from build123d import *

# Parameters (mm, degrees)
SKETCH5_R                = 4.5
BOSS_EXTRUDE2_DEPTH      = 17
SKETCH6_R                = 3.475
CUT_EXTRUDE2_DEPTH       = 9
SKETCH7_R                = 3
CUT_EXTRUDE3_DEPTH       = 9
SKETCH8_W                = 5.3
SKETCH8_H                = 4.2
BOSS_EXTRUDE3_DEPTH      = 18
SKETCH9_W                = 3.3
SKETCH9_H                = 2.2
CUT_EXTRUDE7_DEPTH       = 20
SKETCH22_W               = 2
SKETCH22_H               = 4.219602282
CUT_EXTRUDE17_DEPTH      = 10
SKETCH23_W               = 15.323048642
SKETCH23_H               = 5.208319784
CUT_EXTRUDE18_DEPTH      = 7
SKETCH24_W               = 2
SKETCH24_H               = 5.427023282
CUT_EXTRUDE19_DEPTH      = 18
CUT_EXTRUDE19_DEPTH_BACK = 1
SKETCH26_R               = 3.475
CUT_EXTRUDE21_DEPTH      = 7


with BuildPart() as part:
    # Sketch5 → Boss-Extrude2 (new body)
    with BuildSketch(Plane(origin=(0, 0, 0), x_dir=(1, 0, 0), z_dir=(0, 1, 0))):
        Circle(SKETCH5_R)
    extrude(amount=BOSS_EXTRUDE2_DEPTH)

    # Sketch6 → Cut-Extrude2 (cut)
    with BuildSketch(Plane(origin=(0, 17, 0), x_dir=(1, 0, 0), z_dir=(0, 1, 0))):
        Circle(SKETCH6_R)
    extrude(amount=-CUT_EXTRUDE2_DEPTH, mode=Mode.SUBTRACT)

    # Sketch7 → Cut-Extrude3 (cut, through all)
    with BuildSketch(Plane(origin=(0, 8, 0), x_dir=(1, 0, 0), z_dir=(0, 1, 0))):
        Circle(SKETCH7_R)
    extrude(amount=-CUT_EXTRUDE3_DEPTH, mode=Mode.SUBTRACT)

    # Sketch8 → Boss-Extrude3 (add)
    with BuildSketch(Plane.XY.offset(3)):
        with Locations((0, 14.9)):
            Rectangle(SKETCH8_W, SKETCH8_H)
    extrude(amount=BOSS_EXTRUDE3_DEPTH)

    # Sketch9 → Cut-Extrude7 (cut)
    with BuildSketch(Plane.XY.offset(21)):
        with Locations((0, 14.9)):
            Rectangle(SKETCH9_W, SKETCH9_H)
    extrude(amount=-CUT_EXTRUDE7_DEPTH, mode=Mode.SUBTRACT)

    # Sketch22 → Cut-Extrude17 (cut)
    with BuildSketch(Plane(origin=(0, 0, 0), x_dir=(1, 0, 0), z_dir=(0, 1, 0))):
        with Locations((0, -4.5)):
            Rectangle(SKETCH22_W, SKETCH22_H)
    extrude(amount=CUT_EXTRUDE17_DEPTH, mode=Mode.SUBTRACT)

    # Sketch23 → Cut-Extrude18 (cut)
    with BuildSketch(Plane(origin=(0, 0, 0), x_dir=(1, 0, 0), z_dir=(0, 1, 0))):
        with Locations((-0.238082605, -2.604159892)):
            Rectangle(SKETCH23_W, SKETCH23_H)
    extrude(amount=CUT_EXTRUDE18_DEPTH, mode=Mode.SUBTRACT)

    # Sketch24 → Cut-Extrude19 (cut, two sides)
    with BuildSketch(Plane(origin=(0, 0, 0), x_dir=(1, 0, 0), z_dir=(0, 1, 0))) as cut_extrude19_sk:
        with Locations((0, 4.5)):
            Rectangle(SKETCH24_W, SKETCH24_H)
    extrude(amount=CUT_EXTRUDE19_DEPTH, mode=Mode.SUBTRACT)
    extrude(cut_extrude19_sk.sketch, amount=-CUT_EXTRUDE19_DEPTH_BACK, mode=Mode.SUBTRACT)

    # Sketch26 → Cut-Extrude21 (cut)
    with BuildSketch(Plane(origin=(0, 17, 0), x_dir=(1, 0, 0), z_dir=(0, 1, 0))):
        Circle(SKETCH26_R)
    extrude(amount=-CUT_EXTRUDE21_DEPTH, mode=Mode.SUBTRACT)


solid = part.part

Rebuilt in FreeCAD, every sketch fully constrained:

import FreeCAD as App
import Part
import Sketcher
Q = App.Units.Quantity

doc = App.newDocument("Part")
body = doc.addObject("PartDesign::Body", "Body")

# Sketch on XZ plane
sketch1 = doc.addObject("Sketcher::SketchObject", "Sketch")
body.addObject(sketch1)
sketch1.AttachmentSupport = (doc.XZ_Plane, [""])
sketch1.MapMode = "FlatFace"
sketch1.addGeometry(Part.Circle(App.Vector(0, 0, 0), App.Vector(0, 0, 1), 4.5), False)
sketch1.addConstraint(Sketcher.Constraint("Coincident", 0, 3, -1, 1))
sketch1.addConstraint(Sketcher.Constraint("Diameter", 0, Q("9 mm")))
pad1 = doc.addObject("PartDesign::Pad", "Pad")
body.addObject(pad1)
pad1.Profile = sketch1
pad1.Length = 17
pad1.Reversed = True

# Sketch on XZ plane
sketch2 = doc.addObject("Sketcher::SketchObject", "Sketch001")
body.addObject(sketch2)
sketch2.AttachmentSupport = (doc.XZ_Plane, [""])
sketch2.MapMode = "FlatFace"
sketch2.AttachmentOffset = App.Placement(App.Vector(0, 0, -17), App.Rotation())
sketch2.addGeometry(Part.Circle(App.Vector(0, 0, 0), App.Vector(0, 0, 1), 3.475), False)
sketch2.addConstraint(Sketcher.Constraint("Coincident", 0, 3, -1, 1))
sketch2.addConstraint(Sketcher.Constraint("Diameter", 0, Q("6.95 mm")))
pocket1 = doc.addObject("PartDesign::Pocket", "Pocket")
body.addObject(pocket1)
pocket1.Profile = sketch2
pocket1.Length = 9
pocket1.Reversed = True

# Sketch on XZ plane
sketch3 = doc.addObject("Sketcher::SketchObject", "Sketch002")
body.addObject(sketch3)
sketch3.AttachmentSupport = (doc.XZ_Plane, [""])
sketch3.MapMode = "FlatFace"
sketch3.AttachmentOffset = App.Placement(App.Vector(0, 0, -8), App.Rotation())
sketch3.addGeometry(Part.Circle(App.Vector(0, 0, 0), App.Vector(0, 0, 1), 3), False)
sketch3.addConstraint(Sketcher.Constraint("Coincident", 0, 3, -1, 1))
sketch3.addConstraint(Sketcher.Constraint("Diameter", 0, Q("6 mm")))
pocket2 = doc.addObject("PartDesign::Pocket", "Pocket001")
body.addObject(pocket2)
pocket2.Profile = sketch3
pocket2.Type = "ThroughAll"
pocket2.Reversed = True

# Sketch on XY plane
sketch4 = doc.addObject("Sketcher::SketchObject", "Sketch003")
body.addObject(sketch4)
sketch4.AttachmentSupport = (doc.XY_Plane, [""])
sketch4.MapMode = "FlatFace"
sketch4.AttachmentOffset = App.Placement(App.Vector(0, 0, 3), App.Rotation())
sketch4.addGeometry(Part.LineSegment(App.Vector(-2.65, 17, 0), App.Vector(-2.65, 12.8, 0)), False)
sketch4.addGeometry(Part.LineSegment(App.Vector(-2.65, 12.8, 0), App.Vector(2.65, 12.8, 0)), False)
sketch4.addGeometry(Part.LineSegment(App.Vector(2.65, 12.8, 0), App.Vector(2.65, 17, 0)), False)
sketch4.addGeometry(Part.LineSegment(App.Vector(2.65, 17, 0), App.Vector(-2.65, 17, 0)), False)
sketch4.addConstraint(Sketcher.Constraint("Coincident", 0, 2, 1, 1))
sketch4.addConstraint(Sketcher.Constraint("Coincident", 1, 2, 2, 1))
sketch4.addConstraint(Sketcher.Constraint("Coincident", 2, 2, 3, 1))
sketch4.addConstraint(Sketcher.Constraint("Coincident", 3, 2, 0, 1))
sketch4.addConstraint(Sketcher.Constraint("Vertical", 0))
sketch4.addConstraint(Sketcher.Constraint("Horizontal", 1))
sketch4.addConstraint(Sketcher.Constraint("Vertical", 2))
sketch4.addConstraint(Sketcher.Constraint("Horizontal", 3))
sketch4.addConstraint(Sketcher.Constraint("DistanceX", 1, 1, 1, 2, Q("5.3 mm")))
sketch4.addConstraint(Sketcher.Constraint("DistanceY", 0, 2, 0, 1, Q("4.2 mm")))
sketch4.addConstraint(Sketcher.Constraint("DistanceY", -1, 1, 2, 2, Q("17 mm")))
sketch4.addConstraint(Sketcher.Constraint("DistanceX", 0, 2, -1, 1, Q("2.65 mm")))
pad2 = doc.addObject("PartDesign::Pad", "Pad001")
body.addObject(pad2)
pad2.Profile = sketch4
pad2.Length = 18

# Sketch on XY plane
sketch5 = doc.addObject("Sketcher::SketchObject", "Sketch004")
body.addObject(sketch5)
sketch5.AttachmentSupport = (doc.XY_Plane, [""])
sketch5.MapMode = "FlatFace"
sketch5.AttachmentOffset = App.Placement(App.Vector(0, 0, 21), App.Rotation())
sketch5.addGeometry(Part.LineSegment(App.Vector(-1.65, 16, 0), App.Vector(-1.65, 13.8, 0)), False)
sketch5.addGeometry(Part.LineSegment(App.Vector(-1.65, 13.8, 0), App.Vector(1.65, 13.8, 0)), False)
sketch5.addGeometry(Part.LineSegment(App.Vector(1.65, 13.8, 0), App.Vector(1.65, 16, 0)), False)
sketch5.addGeometry(Part.LineSegment(App.Vector(1.65, 16, 0), App.Vector(-1.65, 16, 0)), False)
sketch5.addConstraint(Sketcher.Constraint("Coincident", 0, 2, 1, 1))
sketch5.addConstraint(Sketcher.Constraint("Coincident", 1, 2, 2, 1))
sketch5.addConstraint(Sketcher.Constraint("Coincident", 2, 2, 3, 1))
sketch5.addConstraint(Sketcher.Constraint("Coincident", 3, 2, 0, 1))
sketch5.addConstraint(Sketcher.Constraint("Vertical", 0))
sketch5.addConstraint(Sketcher.Constraint("Horizontal", 1))
sketch5.addConstraint(Sketcher.Constraint("Vertical", 2))
sketch5.addConstraint(Sketcher.Constraint("Horizontal", 3))
sketch5.addConstraint(Sketcher.Constraint("DistanceX", 1, 1, 1, 2, Q("3.3 mm")))
sketch5.addConstraint(Sketcher.Constraint("DistanceY", 0, 2, 0, 1, Q("2.2 mm")))
sketch5.addConstraint(Sketcher.Constraint("DistanceY", -1, 1, 2, 2, Q("16 mm")))
sketch5.addConstraint(Sketcher.Constraint("DistanceX", 0, 2, -1, 1, Q("1.65 mm")))
pocket3 = doc.addObject("PartDesign::Pocket", "Pocket002")
body.addObject(pocket3)
pocket3.Profile = sketch5
pocket3.Length = 20

# Sketch on XZ plane
sketch6 = doc.addObject("Sketcher::SketchObject", "Sketch005")
body.addObject(sketch6)
sketch6.AttachmentSupport = (doc.XZ_Plane, [""])
sketch6.MapMode = "FlatFace"
sketch6.addGeometry(Part.LineSegment(App.Vector(-1, 2.390199, 0), App.Vector(-1, 6.609801, 0)), False)
sketch6.addGeometry(Part.LineSegment(App.Vector(-1, 6.609801, 0), App.Vector(1, 6.609801, 0)), False)
sketch6.addGeometry(Part.LineSegment(App.Vector(1, 6.609801, 0), App.Vector(1, 2.390199, 0)), False)
sketch6.addGeometry(Part.LineSegment(App.Vector(1, 2.390199, 0), App.Vector(-1, 2.390199, 0)), False)
sketch6.addConstraint(Sketcher.Constraint("Coincident", 0, 2, 1, 1))
sketch6.addConstraint(Sketcher.Constraint("Coincident", 1, 2, 2, 1))
sketch6.addConstraint(Sketcher.Constraint("Coincident", 2, 2, 3, 1))
sketch6.addConstraint(Sketcher.Constraint("Coincident", 3, 2, 0, 1))
sketch6.addConstraint(Sketcher.Constraint("Vertical", 0))
sketch6.addConstraint(Sketcher.Constraint("Horizontal", 1))
sketch6.addConstraint(Sketcher.Constraint("Vertical", 2))
sketch6.addConstraint(Sketcher.Constraint("Horizontal", 3))
sketch6.addConstraint(Sketcher.Constraint("DistanceX", 1, 1, 1, 2, Q("2 mm")))
sketch6.addConstraint(Sketcher.Constraint("DistanceX", 0, 2, -1, 1, Q("1 mm")))
sketch6.addConstraint(Sketcher.Constraint("DistanceY", -1, 1, 0, 2, Q("6.609801 mm")))
sketch6.addConstraint(Sketcher.Constraint("DistanceY", -1, 1, 2, 2, Q("2.390199 mm")))
pocket4 = doc.addObject("PartDesign::Pocket", "Pocket003")
body.addObject(pocket4)
pocket4.Profile = sketch6
pocket4.Length = 10

# Sketch on XZ plane
sketch7 = doc.addObject("Sketcher::SketchObject", "Sketch006")
body.addObject(sketch7)
sketch7.AttachmentSupport = (doc.XZ_Plane, [""])
sketch7.MapMode = "FlatFace"
sketch7.addGeometry(Part.LineSegment(App.Vector(-7.899607, 0, 0), App.Vector(-7.899607, 5.20832, 0)), False)
sketch7.addGeometry(Part.LineSegment(App.Vector(-7.899607, 5.20832, 0), App.Vector(7.423442, 5.20832, 0)), False)
sketch7.addGeometry(Part.LineSegment(App.Vector(7.423442, 5.20832, 0), App.Vector(7.423442, 0, 0)), False)
sketch7.addGeometry(Part.LineSegment(App.Vector(7.423442, 0, 0), App.Vector(-7.899607, 0, 0)), False)
sketch7.addConstraint(Sketcher.Constraint("Coincident", 0, 2, 1, 1))
sketch7.addConstraint(Sketcher.Constraint("Coincident", 1, 2, 2, 1))
sketch7.addConstraint(Sketcher.Constraint("Coincident", 2, 2, 3, 1))
sketch7.addConstraint(Sketcher.Constraint("Coincident", 3, 2, 0, 1))
sketch7.addConstraint(Sketcher.Constraint("Vertical", 0))
sketch7.addConstraint(Sketcher.Constraint("Horizontal", 1))
sketch7.addConstraint(Sketcher.Constraint("Vertical", 2))
sketch7.addConstraint(Sketcher.Constraint("Horizontal", 3))
sketch7.addConstraint(Sketcher.Constraint("PointOnObject", 2, 2, -1))
sketch7.addConstraint(Sketcher.Constraint("DistanceX", 1, 1, 1, 2, Q("15.323049 mm")))
sketch7.addConstraint(Sketcher.Constraint("DistanceY", 0, 1, 0, 2, Q("5.20832 mm")))
sketch7.addConstraint(Sketcher.Constraint("DistanceX", -1, 1, 1, 2, Q("7.423442 mm")))
pocket5 = doc.addObject("PartDesign::Pocket", "Pocket004")
body.addObject(pocket5)
pocket5.Profile = sketch7
pocket5.Length = 7

# Sketch on XZ plane
sketch8 = doc.addObject("Sketcher::SketchObject", "Sketch007")
body.addObject(sketch8)
sketch8.AttachmentSupport = (doc.XZ_Plane, [""])
sketch8.MapMode = "FlatFace"
sketch8.addGeometry(Part.LineSegment(App.Vector(-1, -7.213512, 0), App.Vector(-1, -1.786488, 0)), False)
sketch8.addGeometry(Part.LineSegment(App.Vector(-1, -1.786488, 0), App.Vector(1, -1.786488, 0)), False)
sketch8.addGeometry(Part.LineSegment(App.Vector(1, -1.786488, 0), App.Vector(1, -7.213512, 0)), False)
sketch8.addGeometry(Part.LineSegment(App.Vector(1, -7.213512, 0), App.Vector(-1, -7.213512, 0)), False)
sketch8.addConstraint(Sketcher.Constraint("Coincident", 0, 2, 1, 1))
sketch8.addConstraint(Sketcher.Constraint("Coincident", 1, 2, 2, 1))
sketch8.addConstraint(Sketcher.Constraint("Coincident", 2, 2, 3, 1))
sketch8.addConstraint(Sketcher.Constraint("Coincident", 3, 2, 0, 1))
sketch8.addConstraint(Sketcher.Constraint("Vertical", 0))
sketch8.addConstraint(Sketcher.Constraint("Horizontal", 1))
sketch8.addConstraint(Sketcher.Constraint("Vertical", 2))
sketch8.addConstraint(Sketcher.Constraint("Horizontal", 3))
sketch8.addConstraint(Sketcher.Constraint("DistanceX", 1, 1, 1, 2, Q("2 mm")))
sketch8.addConstraint(Sketcher.Constraint("DistanceX", 0, 2, -1, 1, Q("1 mm")))
sketch8.addConstraint(Sketcher.Constraint("DistanceY", 0, 1, 0, 2, Q("5.427023 mm")))
sketch8.addConstraint(Sketcher.Constraint("DistanceY", 0, 2, -1, 1, Q("1.786488 mm")))
pocket6 = doc.addObject("PartDesign::Pocket", "Pocket005")
body.addObject(pocket6)
pocket6.Profile = sketch8
pocket6.Type = "ThroughAll"
pocket6.Midplane = True

# Sketch on XZ plane
sketch9 = doc.addObject("Sketcher::SketchObject", "Sketch008")
body.addObject(sketch9)
sketch9.AttachmentSupport = (doc.XZ_Plane, [""])
sketch9.MapMode = "FlatFace"
sketch9.AttachmentOffset = App.Placement(App.Vector(0, 0, -17), App.Rotation())
sketch9.addGeometry(Part.Circle(App.Vector(0, 0, 0), App.Vector(0, 0, 1), 3.475), False)
sketch9.addConstraint(Sketcher.Constraint("Coincident", 0, 3, -1, 1))
sketch9.addConstraint(Sketcher.Constraint("Diameter", 0, Q("6.95 mm")))
pocket7 = doc.addObject("PartDesign::Pocket", "Pocket006")
body.addObject(pocket7)
pocket7.Profile = sketch9
pocket7.Length = 7
pocket7.Reversed = True

doc.recompute()
